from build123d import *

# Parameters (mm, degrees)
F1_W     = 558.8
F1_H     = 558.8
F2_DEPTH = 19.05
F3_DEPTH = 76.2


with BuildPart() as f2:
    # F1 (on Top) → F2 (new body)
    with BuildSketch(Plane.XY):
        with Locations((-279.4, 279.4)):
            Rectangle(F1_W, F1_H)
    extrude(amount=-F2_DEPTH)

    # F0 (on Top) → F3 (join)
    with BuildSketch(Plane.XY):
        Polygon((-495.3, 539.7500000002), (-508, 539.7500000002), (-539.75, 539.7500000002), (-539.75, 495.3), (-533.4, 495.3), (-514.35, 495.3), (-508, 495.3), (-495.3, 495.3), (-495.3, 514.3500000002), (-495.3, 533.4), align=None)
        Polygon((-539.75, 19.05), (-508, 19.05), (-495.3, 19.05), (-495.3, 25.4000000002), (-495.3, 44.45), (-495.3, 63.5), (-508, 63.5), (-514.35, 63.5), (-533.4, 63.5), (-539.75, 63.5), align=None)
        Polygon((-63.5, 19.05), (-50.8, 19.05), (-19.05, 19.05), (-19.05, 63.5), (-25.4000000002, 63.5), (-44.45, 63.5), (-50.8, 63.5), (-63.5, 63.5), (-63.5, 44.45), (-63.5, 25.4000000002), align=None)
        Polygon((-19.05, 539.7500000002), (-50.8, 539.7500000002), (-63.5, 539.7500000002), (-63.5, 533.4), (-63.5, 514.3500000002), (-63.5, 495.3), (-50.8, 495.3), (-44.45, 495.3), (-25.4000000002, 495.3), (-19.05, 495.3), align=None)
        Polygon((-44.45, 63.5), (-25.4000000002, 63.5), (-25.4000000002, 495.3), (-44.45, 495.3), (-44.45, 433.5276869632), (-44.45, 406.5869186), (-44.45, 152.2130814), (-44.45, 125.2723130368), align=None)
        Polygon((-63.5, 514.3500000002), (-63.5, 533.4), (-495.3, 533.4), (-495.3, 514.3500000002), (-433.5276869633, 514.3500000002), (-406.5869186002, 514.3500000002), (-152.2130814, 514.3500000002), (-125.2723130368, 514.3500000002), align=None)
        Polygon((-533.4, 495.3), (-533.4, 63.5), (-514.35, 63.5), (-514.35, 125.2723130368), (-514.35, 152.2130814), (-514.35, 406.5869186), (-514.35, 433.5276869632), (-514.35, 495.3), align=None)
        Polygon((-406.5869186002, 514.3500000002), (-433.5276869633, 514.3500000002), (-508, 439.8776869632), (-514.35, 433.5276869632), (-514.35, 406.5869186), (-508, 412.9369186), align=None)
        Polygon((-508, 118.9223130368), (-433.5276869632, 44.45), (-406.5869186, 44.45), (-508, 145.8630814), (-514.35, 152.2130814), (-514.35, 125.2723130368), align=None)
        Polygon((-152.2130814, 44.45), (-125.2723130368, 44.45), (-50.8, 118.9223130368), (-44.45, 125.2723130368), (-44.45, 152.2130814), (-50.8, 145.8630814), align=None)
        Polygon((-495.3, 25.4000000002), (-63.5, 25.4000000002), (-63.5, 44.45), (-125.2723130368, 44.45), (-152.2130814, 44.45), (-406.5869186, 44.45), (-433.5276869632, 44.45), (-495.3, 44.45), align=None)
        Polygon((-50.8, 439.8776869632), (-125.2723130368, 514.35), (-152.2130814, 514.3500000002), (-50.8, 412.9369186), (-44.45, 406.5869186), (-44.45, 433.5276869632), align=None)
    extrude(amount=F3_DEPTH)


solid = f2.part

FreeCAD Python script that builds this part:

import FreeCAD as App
import Part
import Sketcher
from FreeCAD import Vector
Q = App.Units.Quantity

doc = App.newDocument("Part")
params = doc.addObject("Spreadsheet::Sheet", "Params")
for row, (alias, value) in enumerate([
    ("sketch1_width", "22 in"),
    ("pad1_length", "0.75 in"),
    ("sketch2_width", "17 in"),
    ("sketch2_width2", "1.75 in"),
    ("pad2_length", "3 in"),
], start=1):
    params.set(f"A{row}", alias)
    params.set(f"B{row}", "=" + value)
    params.setAlias(f"B{row}", alias)

body = doc.addObject("PartDesign::Body", "Body")

# Sketch on XY plane
sketch1 = body.newObject("Sketcher::SketchObject", "Sketch")
sketch1.AttachmentSupport = (doc.getObject("XY_Plane"), [""])
sketch1.MapMode = "FlatFace"
sketch1.addGeometry(Part.LineSegment(Vector(-559, 559, 0), Vector(-559, 0, 0)), False)
sketch1.addGeometry(Part.LineSegment(Vector(-559, 0, 0), Vector(0, 0, 0)), False)
sketch1.addGeometry(Part.LineSegment(Vector(0, 0, 0), Vector(0, 559, 0)), False)
sketch1.addGeometry(Part.LineSegment(Vector(0, 559, 0), Vector(-559, 559, 0)), False)
sketch1.addConstraint(Sketcher.Constraint("Coincident", 0, 2, 1, 1))
sketch1.addConstraint(Sketcher.Constraint("Coincident", 1, 2, 2, 1))
sketch1.addConstraint(Sketcher.Constraint("Coincident", 2, 2, 3, 1))
sketch1.addConstraint(Sketcher.Constraint("Coincident", 3, 2, 0, 1))
sketch1.addConstraint(Sketcher.Constraint("Vertical", 0))
sketch1.addConstraint(Sketcher.Constraint("Horizontal", 1))
sketch1.addConstraint(Sketcher.Constraint("Vertical", 2))
sketch1.addConstraint(Sketcher.Constraint("Horizontal", 3))
sketch1.addConstraint(Sketcher.Constraint("Coincident", 1, 2, -1, 1))
sketch1.addConstraint(Sketcher.Constraint("Equal", 3, 0))
sketch1.addConstraint(Sketcher.Constraint("DistanceX", 1, 1, 1, 2, Q("22 in")))
sketch1.setExpression("Constraints[10]", "Params.sketch1_width")
pad1 = body.newObject("PartDesign::Pad", "Pad")
pad1.Profile = sketch1
pad1.setExpression("Length", "Params.pad1_length")
pad1.Reversed = True

# Sketch on XY plane
sketch2 = body.newObject("Sketcher::SketchObject", "Sketch001")
sketch2.AttachmentSupport = (doc.getObject("XY_Plane"), [""])
sketch2.MapMode = "FlatFace"
sketch2.addGeometry(Part.LineSegment(Vector(-495, 540, 0), Vector(-540, 540, 0)), False)
sketch2.addGeometry(Part.LineSegment(Vector(-540, 540, 0), Vector(-540, 495, 0)), False)
sketch2.addGeometry(Part.LineSegment(Vector(-540, 495, 0), Vector(-533, 495, 0)), False)
sketch2.addGeometry(Part.LineSegment(Vector(-533, 495, 0), Vector(-533, 64, 0)), False)
sketch2.addGeometry(Part.LineSegment(Vector(-533, 64, 0), Vector(-540, 64, 0)), False)
sketch2.addGeometry(Part.LineSegment(Vector(-540, 64, 0), Vector(-540, 19, 0)), False)
sketch2.addGeometry(Part.LineSegment(Vector(-540, 19, 0), Vector(-495, 19, 0)), False)
sketch2.addGeometry(Part.LineSegment(Vector(-495, 19, 0), Vector(-495, 25, 0)), False)
sketch2.addGeometry(Part.LineSegment(Vector(-495, 25, 0), Vector(-64, 25, 0)), False)
sketch2.addGeometry(Part.LineSegment(Vector(-64, 25, 0), Vector(-64, 19, 0)), False)
sketch2.addGeometry(Part.LineSegment(Vector(-64, 19, 0), Vector(-19, 19, 0)), False)
sketch2.addGeometry(Part.LineSegment(Vector(-19, 19, 0), Vector(-19, 64, 0)), False)
sketch2.addGeometry(Part.LineSegment(Vector(-19, 64, 0), Vector(-25, 64, 0)), False)
sketch2.addGeometry(Part.LineSegment(Vector(-25, 64, 0), Vector(-25, 495, 0)), False)
sketch2.addGeometry(Part.LineSegment(Vector(-25, 495, 0), Vector(-19, 495, 0)), False)
sketch2.addGeometry(Part.LineSegment(Vector(-19, 495, 0), Vector(-19, 540, 0)), False)
sketch2.addGeometry(Part.LineSegment(Vector(-19, 540, 0), Vector(-64, 540, 0)), False)
sketch2.addGeometry(Part.LineSegment(Vector(-64, 540, 0), Vector(-64, 533, 0)), False)
sketch2.addGeometry(Part.LineSegment(Vector(-64, 533, 0), Vector(-495, 533, 0)), False)
sketch2.addGeometry(Part.LineSegment(Vector(-495, 533, 0), Vector(-495, 540, 0)), False)
sketch2.addGeometry(Part.LineSegment(Vector(-495, 44, 0), Vector(-495, 64, 0)), False)
sketch2.addGeometry(Part.LineSegment(Vector(-495, 64, 0), Vector(-514, 64, 0)), False)
sketch2.addGeometry(Part.LineSegment(Vector(-514, 64, 0), Vector(-514, 125, 0)), False)
sketch2.addGeometry(Part.LineSegment(Vector(-514, 125, 0), Vector(-434, 44, 0)), False)
sketch2.addGeometry(Part.LineSegment(Vector(-434, 44, 0), Vector(-495, 44, 0)), False)
sketch2.addGeometry(Part.LineSegment(Vector(-407, 44, 0), Vector(-514, 152, 0)), False)
sketch2.addGeometry(Part.LineSegment(Vector(-514, 152, 0), Vector(-514, 407, 0)), False)
sketch2.addGeometry(Part.LineSegment(Vector(-514, 407, 0), Vector(-508, 413, 0)), False)
sketch2.addGeometry(Part.LineSegment(Vector(-508, 413, 0), Vector(-407, 514, 0)), False)
sketch2.addGeometry(Part.LineSegment(Vector(-407, 514, 0), Vector(-152, 514, 0)), False)
sketch2.addGeometry(Part.LineSegment(Vector(-152, 514, 0), Vector(-44, 407, 0)), False)
sketch2.addGeometry(Part.LineSegment(Vector(-44, 407, 0), Vector(-44, 152, 0)), False)
sketch2.addGeometry(Part.LineSegment(Vector(-44, 152, 0), Vector(-152, 44, 0)), False)
sketch2.addGeometry(Part.LineSegment(Vector(-152, 44, 0), Vector(-407, 44, 0)), False)
sketch2.addGeometry(Part.LineSegment(Vector(-125, 514, 0), Vector(-64, 514, 0)), False)
sketch2.addGeometry(Part.LineSegment(Vector(-64, 514, 0), Vector(-64, 495, 0)), False)
sketch2.addGeometry(Part.LineSegment(Vector(-64, 495, 0), Vector(-44, 495, 0)), False)
sketch2.addGeometry(Part.LineSegment(Vector(-44, 495, 0), Vector(-44, 434, 0)), False)
sketch2.addGeometry(Part.LineSegment(Vector(-44, 434, 0), Vector(-125, 514, 0)), False)
sketch2.addGeometry(Part.LineSegment(Vector(-125, 44, 0), Vector(-44, 125, 0)), False)
sketch2.addGeometry(Part.LineSegment(Vector(-44, 125, 0), Vector(-44, 64, 0)), False)
sketch2.addGeometry(Part.LineSegment(Vector(-44, 64, 0), Vector(-64, 64, 0)), False)
sketch2.addGeometry(Part.LineSegment(Vector(-64, 64, 0), Vector(-64, 44, 0)), False)
sketch2.addGeometry(Part.LineSegment(Vector(-64, 44, 0), Vector(-125, 44, 0)), False)
sketch2.addGeometry(Part.LineSegment(Vector(-514, 434, 0), Vector(-514, 495, 0)), False)
sketch2.addGeometry(Part.LineSegment(Vector(-514, 495, 0), Vector(-495, 495, 0)), False)
sketch2.addGeometry(Part.LineSegment(Vector(-495, 495, 0), Vector(-495, 514, 0)), False)
sketch2.addGeometry(Part.LineSegment(Vector(-495, 514, 0), Vector(-434, 514, 0)), False)
sketch2.addGeometry(Part.LineSegment(Vector(-434, 514, 0), Vector(-508, 440, 0)), False)
sketch2.addGeometry(Part.LineSegment(Vector(-508, 440, 0), Vector(-514, 434, 0)), False)
sketch2.addConstraint(Sketcher.Constraint("Coincident", 0, 2, 1, 1))
sketch2.addConstraint(Sketcher.Constraint("Coincident", 1, 2, 2, 1))
sketch2.addConstraint(Sketcher.Constraint("Coincident", 2, 2, 3, 1))
sketch2.addConstraint(Sketcher.Constraint("Coincident", 3, 2, 4, 1))
sketch2.addConstraint(Sketcher.Constraint("Coincident", 4, 2, 5, 1))
sketch2.addConstraint(Sketcher.Constraint("Coincident", 5, 2, 6, 1))
sketch2.addConstraint(Sketcher.Constraint("Coincident", 6, 2, 7, 1))
sketch2.addConstraint(Sketcher.Constraint("Coincident", 7, 2, 8, 1))
sketch2.addConstraint(Sketcher.Constraint("Coincident", 8, 2, 9, 1))
sketch2.addConstraint(Sketcher.Constraint("Coincident", 9, 2, 10, 1))
sketch2.addConstraint(Sketcher.Constraint("Coincident", 10, 2, 11, 1))
sketch2.addConstraint(Sketcher.Constraint("Coincident", 11, 2, 12, 1))
sketch2.addConstraint(Sketcher.Constraint("Coincident", 12, 2, 13, 1))
sketch2.addConstraint(Sketcher.Constraint("Coincident", 13, 2, 14, 1))
sketch2.addConstraint(Sketcher.Constraint("Coincident", 14, 2, 15, 1))
sketch2.addConstraint(Sketcher.Constraint("Coincident", 15, 2, 16, 1))
sketch2.addConstraint(Sketcher.Constraint("Coincident", 16, 2, 17, 1))
sketch2.addConstraint(Sketcher.Constraint("Coincident", 17, 2, 18, 1))
sketch2.addConstraint(Sketcher.Constraint("Coincident", 18, 2, 19, 1))
sketch2.addConstraint(Sketcher.Constraint("Coincident", 19, 2, 0, 1))
sketch2.addConstraint(Sketcher.Constraint("Coincident", 20, 2, 21, 1))
sketch2.addConstraint(Sketcher.Constraint("Coincident", 21, 2, 22, 1))
sketch2.addConstraint(Sketcher.Constraint("Coincident", 22, 2, 23, 1))
sketch2.addConstraint(Sketcher.Constraint("Coincident", 23, 2, 24, 1))
sketch2.addConstraint(Sketcher.Constraint("Coincident", 24, 2, 20, 1))
sketch2.addConstraint(Sketcher.Constraint("Coincident", 25, 2, 26, 1))
sketch2.addConstraint(Sketcher.Constraint("Coincident", 26, 2, 27, 1))
sketch2.addConstraint(Sketcher.Constraint("Coincident", 27, 2, 28, 1))
sketch2.addConstraint(Sketcher.Constraint("Coincident", 28, 2, 29, 1))
sketch2.addConstraint(Sketcher.Constraint("Coincident", 29, 2, 30, 1))
sketch2.addConstraint(Sketcher.Constraint("Coincident", 30, 2, 31, 1))
sketch2.addConstraint(Sketcher.Constraint("Coincident", 31, 2, 32, 1))
sketch2.addConstraint(Sketcher.Constraint("Coincident", 32, 2, 33, 1))
sketch2.addConstraint(Sketcher.Constraint("Coincident", 33, 2, 25, 1))
sketch2.addConstraint(Sketcher.Constraint("Coincident", 34, 2, 35, 1))
sketch2.addConstraint(Sketcher.Constraint("Coincident", 35, 2, 36, 1))
sketch2.addConstraint(Sketcher.Constraint("Coincident", 36, 2, 37, 1))
sketch2.addConstraint(Sketcher.Constraint("Coincident", 37, 2, 38, 1))
sketch2.addConstraint(Sketcher.Constraint("Coincident", 38, 2, 34, 1))
sketch2.addConstraint(Sketcher.Constraint("Coincident", 39, 2, 40, 1))
sketch2.addConstraint(Sketcher.Constraint("Coincident", 40, 2, 41, 1))
sketch2.addConstraint(Sketcher.Constraint("Coincident", 41, 2, 42, 1))
sketch2.addConstraint(Sketcher.Constraint("Coincident", 42, 2, 43, 1))
sketch2.addConstraint(Sketcher.Constraint("Coincident", 43, 2, 39, 1))
sketch2.addConstraint(Sketcher.Constraint("Coincident", 44, 2, 45, 1))
sketch2.addConstraint(Sketcher.Constraint("Coincident", 45, 2, 46, 1))
sketch2.addConstraint(Sketcher.Constraint("Coincident", 46, 2, 47, 1))
sketch2.addConstraint(Sketcher.Constraint("Coincident", 47, 2, 48, 1))
sketch2.addConstraint(Sketcher.Constraint("Coincident", 48, 2, 49, 1))
sketch2.addConstraint(Sketcher.Constraint("Coincident", 49, 2, 44, 1))
sketch2.addConstraint(Sketcher.Constraint("Horizontal", 0))
sketch2.addConstraint(Sketcher.Constraint("Vertical", 1))
sketch2.addConstraint(Sketcher.Constraint("Horizontal", 2))
sketch2.addConstraint(Sketcher.Constraint("Vertical", 3))
sketch2.addConstraint(Sketcher.Constraint("Horizontal", 4))
sketch2.addConstraint(Sketcher.Constraint("Vertical", 5))
sketch2.addConstraint(Sketcher.Constraint("Horizontal", 6))
sketch2.addConstraint(Sketcher.Constraint("Vertical", 7))
sketch2.addConstraint(Sketcher.Constraint("Horizontal", 8))
sketch2.addConstraint(Sketcher.Constraint("Vertical", 9))
sketch2.addConstraint(Sketcher.Constraint("Horizontal", 10))
sketch2.addConstraint(Sketcher.Constraint("Vertical", 11))
sketch2.addConstraint(Sketcher.Constraint("Horizontal", 12))
sketch2.addConstraint(Sketcher.Constraint("Vertical", 13))
sketch2.addConstraint(Sketcher.Constraint("Horizontal", 14))
sketch2.addConstraint(Sketcher.Constraint("Vertical", 15))
sketch2.addConstraint(Sketcher.Constraint("Horizontal", 16))
sketch2.addConstraint(Sketcher.Constraint("Vertical", 17))
sketch2.addConstraint(Sketcher.Constraint("Horizontal", 18))
sketch2.addConstraint(Sketcher.Constraint("Vertical", 19))
sketch2.addConstraint(Sketcher.Constraint("Vertical", 20))
sketch2.addConstraint(Sketcher.Constraint("Horizontal", 21))
sketch2.addConstraint(Sketcher.Constraint("Vertical", 22))
sketch2.addConstraint(Sketcher.Constraint("Horizontal", 24))
sketch2.addConstraint(Sketcher.Constraint("Vertical", 26))
sketch2.addConstraint(Sketcher.Constraint("Horizontal", 29))
sketch2.addConstraint(Sketcher.Constraint("Vertical", 31))
sketch2.addConstraint(Sketcher.Constraint("Horizontal", 33))
sketch2.addConstraint(Sketcher.Constraint("Horizontal", 34))
sketch2.addConstraint(Sketcher.Constraint("Vertical", 35))
sketch2.addConstraint(Sketcher.Constraint("Horizontal", 36))
sketch2.addConstraint(Sketcher.Constraint("Vertical", 37))
sketch2.addConstraint(Sketcher.Constraint("Vertical", 40))
sketch2.addConstraint(Sketcher.Constraint("Horizontal", 41))
sketch2.addConstraint(Sketcher.Constraint("Vertical", 42))
sketch2.addConstraint(Sketcher.Constraint("Horizontal", 43))
sketch2.addConstraint(Sketcher.Constraint("Vertical", 44))
sketch2.addConstraint(Sketcher.Constraint("Horizontal", 45))
sketch2.addConstraint(Sketcher.Constraint("Vertical", 46))
sketch2.addConstraint(Sketcher.Constraint("Horizontal", 47))
sketch2.addConstraint(Sketcher.Constraint("Parallel", 23, 25))
sketch2.addConstraint(Sketcher.Constraint("Perpendicular", 25, 27))
sketch2.addConstraint(Sketcher.Constraint("Parallel", 27, 28))
sketch2.addConstraint(Sketcher.Constraint("Perpendicular", 28, 30))
sketch2.addConstraint(Sketcher.Constraint("Perpendicular", 30, 32))
sketch2.addConstraint(Sketcher.Constraint("Perpendicular", 32, 38))
sketch2.addConstraint(Sketcher.Constraint("Perpendicular", 38, 39))
sketch2.addConstraint(Sketcher.Constraint("Parallel", 39, 48))
sketch2.addConstraint(Sketcher.Constraint("Parallel", 48, 49))
sketch2.addConstraint(Sketcher.Constraint("Horizontal", 6, 2, 9, 2))
sketch2.addConstraint(Sketcher.Constraint("Horizontal", 4, 2, 11, 2))
sketch2.addConstraint(Sketcher.Constraint("Horizontal", 2, 2, 13, 2))
sketch2.addConstraint(Sketcher.Constraint("Horizontal", 0, 2, 15, 2))
sketch2.addConstraint(Sketcher.Constraint("Horizontal", 12, 2, 20, 2))
sketch2.addConstraint(Sketcher.Constraint("Horizontal", 26, 2, 30, 2))
sketch2.addConstraint(Sketcher.Constraint("Horizontal", 25, 2, 31, 2))
sketch2.addConstraint(Sketcher.Constraint("Horizontal", 24, 2, 32, 2))
sketch2.addConstraint(Sketcher.Constraint("Horizontal", 29, 2, 34, 2))
sketch2.addConstraint(Sketcher.Constraint("Horizontal", 14, 2, 35, 2))
sketch2.addConstraint(Sketcher.Constraint("Horizontal", 22, 2, 39, 2))
sketch2.addConstraint(Sketcher.Constraint("Horizontal", 21, 2, 40, 2))
sketch2.addConstraint(Sketcher.Constraint("Horizontal", 33, 2, 42, 2))
sketch2.addConstraint(Sketcher.Constraint("Horizontal", 36, 2, 44, 2))
sketch2.addConstraint(Sketcher.Constraint("Horizontal", 38, 2, 46, 2))
sketch2.addConstraint(Sketcher.Constraint("Horizontal", 37, 2, 49, 2))
sketch2.addConstraint(Sketcher.Constraint("Vertical", 1, 2, 4, 2))
sketch2.addConstraint(Sketcher.Constraint("Vertical", 11, 2, 14, 2))
sketch2.addConstraint(Sketcher.Constraint("Vertical", 9, 2, 16, 2))
sketch2.addConstraint(Sketcher.Constraint("Vertical", 7, 2, 18, 2))
sketch2.addConstraint(Sketcher.Constraint("Vertical", 19, 2, 20, 2))
sketch2.addConstraint(Sketcher.Constraint("Vertical", 22, 2, 25, 2))
sketch2.addConstraint(Sketcher.Constraint("Vertical", 29, 2, 32, 2))
sketch2.addConstraint(Sketcher.Constraint("Vertical", 28, 2, 33, 2))
sketch2.addConstraint(Sketcher.Constraint("Vertical", 17, 2, 34, 2))
sketch2.addConstraint(Sketcher.Constraint("Vertical", 31, 2, 36, 2))
sketch2.addConstraint(Sketcher.Constraint("Vertical", 37, 2, 39, 2))
sketch2.addConstraint(Sketcher.Constraint("Vertical", 35, 2, 41, 2))
sketch2.addConstraint(Sketcher.Constraint("Vertical", 38, 2, 43, 2))
sketch2.addConstraint(Sketcher.Constraint("Vertical", 26, 2, 44, 2))
sketch2.addConstraint(Sketcher.Constraint("Vertical", 24, 2, 45, 2))
sketch2.addConstraint(Sketcher.Constraint("Vertical", 27, 2, 48, 2))
sketch2.addConstraint(Sketcher.Constraint("Equal", 6, 10))
sketch2.addConstraint(Sketcher.Constraint("Equal", 4, 12))
sketch2.addConstraint(Sketcher.Constraint("Equal", 24, 34))
sketch2.addConstraint(Sketcher.Constraint("Equal", 16, 1))
sketch2.addConstraint(Sketcher.Constraint("Equal", 18, 3))
sketch2.addConstraint(Sketcher.Constraint("Equal", 1, 5))
sketch2.addConstraint(Sketcher.Constraint("Equal", 14, 7))
sketch2.addConstraint(Sketcher.Constraint("Equal", 9, 17))
sketch2.addConstraint(Sketcher.Constraint("Equal", 45, 20))
sketch2.addConstraint(Sketcher.Constraint("Equal", 33, 26))
sketch2.addConstraint(Sketcher.Constraint("DistanceX", 8, 1, 8, 2, Q("17 in")))
sketch2.addConstraint(Sketcher.Constraint("DistanceX", 2, 2, -1, 1, Q("21 in")))
sketch2.addConstraint(Sketcher.Constraint("DistanceY", -1, 1, 7, 2, Q("1 in")))
sketch2.addConstraint(Sketcher.Constraint("DistanceX", 12, 2, -1, 1, Q("1 in")))
sketch2.addConstraint(Sketcher.Constraint("DistanceX", 27, 2, -1, 1, Q("20 in")))
sketch2.addConstraint(Sketcher.Constraint("DistanceX", 4, 2, 21, 2, Q("1 in")))
sketch2.addConstraint(Sketcher.Constraint("DistanceX", 0, 2, 0, 1, Q("1.75 in")))
sketch2.addConstraint(Sketcher.Constraint("Distance", 23, 114.300011))
sketch2.addConstraint(Sketcher.Constraint("Distance", 25, 152.400011))
sketch2.setExpression("Constraints[141]", "Params.sketch2_width")
sketch2.setExpression("Constraints[147]", "Params.sketch2_width2")
pad2 = body.newObject("PartDesign::Pad", "Pad001")
pad2.Profile = sketch2
pad2.setExpression("Length", "Params.pad2_length")

doc.recompute()
